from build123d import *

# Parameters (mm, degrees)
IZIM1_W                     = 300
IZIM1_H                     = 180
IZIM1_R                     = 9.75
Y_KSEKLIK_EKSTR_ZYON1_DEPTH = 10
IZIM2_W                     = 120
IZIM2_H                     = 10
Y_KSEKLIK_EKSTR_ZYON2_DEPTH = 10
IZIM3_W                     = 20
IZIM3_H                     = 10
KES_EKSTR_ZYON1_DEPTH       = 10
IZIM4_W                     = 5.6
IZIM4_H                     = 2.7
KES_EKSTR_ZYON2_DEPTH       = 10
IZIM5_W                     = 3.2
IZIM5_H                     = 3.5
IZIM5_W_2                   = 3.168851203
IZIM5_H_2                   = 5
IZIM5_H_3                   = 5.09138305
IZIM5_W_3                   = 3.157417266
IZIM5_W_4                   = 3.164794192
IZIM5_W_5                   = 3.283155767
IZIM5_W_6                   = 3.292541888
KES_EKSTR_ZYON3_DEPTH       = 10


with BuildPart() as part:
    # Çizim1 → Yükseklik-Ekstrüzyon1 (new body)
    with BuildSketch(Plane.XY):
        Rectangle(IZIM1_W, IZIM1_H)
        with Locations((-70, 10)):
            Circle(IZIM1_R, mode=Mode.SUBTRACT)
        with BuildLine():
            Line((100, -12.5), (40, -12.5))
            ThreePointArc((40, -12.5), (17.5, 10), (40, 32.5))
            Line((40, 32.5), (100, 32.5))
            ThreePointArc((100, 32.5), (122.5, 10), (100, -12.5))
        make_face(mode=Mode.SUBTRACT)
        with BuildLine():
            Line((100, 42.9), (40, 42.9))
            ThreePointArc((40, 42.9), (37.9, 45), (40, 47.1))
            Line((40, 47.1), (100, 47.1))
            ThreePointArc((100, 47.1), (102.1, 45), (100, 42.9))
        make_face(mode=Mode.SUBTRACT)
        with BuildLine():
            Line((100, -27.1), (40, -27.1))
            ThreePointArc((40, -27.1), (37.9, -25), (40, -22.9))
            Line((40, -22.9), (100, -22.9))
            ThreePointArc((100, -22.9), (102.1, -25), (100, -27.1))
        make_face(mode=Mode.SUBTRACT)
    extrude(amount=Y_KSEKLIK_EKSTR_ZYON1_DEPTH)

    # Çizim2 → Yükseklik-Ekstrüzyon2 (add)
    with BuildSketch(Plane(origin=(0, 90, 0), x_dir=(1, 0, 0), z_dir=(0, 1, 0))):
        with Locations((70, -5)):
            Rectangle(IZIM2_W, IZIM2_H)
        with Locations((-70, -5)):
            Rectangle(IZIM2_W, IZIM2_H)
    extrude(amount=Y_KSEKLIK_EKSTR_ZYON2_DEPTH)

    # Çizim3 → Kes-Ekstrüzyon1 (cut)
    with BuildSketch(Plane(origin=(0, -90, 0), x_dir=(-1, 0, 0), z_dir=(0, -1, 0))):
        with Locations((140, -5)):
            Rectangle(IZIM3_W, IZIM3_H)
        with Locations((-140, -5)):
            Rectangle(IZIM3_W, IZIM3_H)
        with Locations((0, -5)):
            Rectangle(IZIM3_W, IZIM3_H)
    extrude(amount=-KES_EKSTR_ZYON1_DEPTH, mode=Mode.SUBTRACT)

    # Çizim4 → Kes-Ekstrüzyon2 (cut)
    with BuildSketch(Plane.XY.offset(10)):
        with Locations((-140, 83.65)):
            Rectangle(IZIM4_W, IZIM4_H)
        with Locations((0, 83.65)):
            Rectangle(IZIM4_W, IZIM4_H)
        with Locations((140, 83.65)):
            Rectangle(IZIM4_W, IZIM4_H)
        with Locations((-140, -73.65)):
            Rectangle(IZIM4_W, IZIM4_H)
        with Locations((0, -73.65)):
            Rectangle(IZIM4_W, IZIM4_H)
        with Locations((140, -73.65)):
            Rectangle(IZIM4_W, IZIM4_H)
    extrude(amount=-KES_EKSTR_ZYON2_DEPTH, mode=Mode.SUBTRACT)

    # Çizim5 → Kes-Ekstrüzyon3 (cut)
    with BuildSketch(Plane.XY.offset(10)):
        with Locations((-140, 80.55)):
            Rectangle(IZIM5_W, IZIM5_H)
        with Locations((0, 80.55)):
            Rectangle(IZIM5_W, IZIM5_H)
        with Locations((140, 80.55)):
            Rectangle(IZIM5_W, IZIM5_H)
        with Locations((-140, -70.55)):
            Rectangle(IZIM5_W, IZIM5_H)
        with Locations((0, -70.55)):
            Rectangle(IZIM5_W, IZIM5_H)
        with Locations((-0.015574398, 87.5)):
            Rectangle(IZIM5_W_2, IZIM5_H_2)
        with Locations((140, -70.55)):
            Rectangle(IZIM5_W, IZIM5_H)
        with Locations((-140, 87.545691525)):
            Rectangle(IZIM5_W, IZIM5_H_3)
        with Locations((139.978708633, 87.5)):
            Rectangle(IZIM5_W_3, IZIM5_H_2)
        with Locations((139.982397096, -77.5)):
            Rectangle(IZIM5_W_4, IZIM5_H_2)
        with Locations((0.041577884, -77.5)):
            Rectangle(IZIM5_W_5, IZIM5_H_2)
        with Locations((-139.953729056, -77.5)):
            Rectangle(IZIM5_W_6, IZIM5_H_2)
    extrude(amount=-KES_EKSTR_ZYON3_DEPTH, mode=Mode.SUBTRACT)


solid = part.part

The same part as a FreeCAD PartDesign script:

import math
import FreeCAD as App
import Part
import Sketcher
from FreeCAD import Vector
Q = App.Units.Quantity


def add_polygon(sketch, points):
    """Adds a closed chain of lines whose ends are joined by coincident constraints."""
    first, n = sketch.GeometryCount, len(points)
    for a, b in zip(points, points[1:] + points[:1]):
        sketch.addGeometry(Part.LineSegment(App.Vector(*a, 0), App.Vector(*b, 0)), False)
    for i in range(n):
        sketch.addConstraint(Sketcher.Constraint("Coincident", first + i, 2, first + (i + 1) % n, 1))

doc = App.newDocument("Part")
body = doc.addObject("PartDesign::Body", "Body")

sketch1 = body.newObject("Sketcher::SketchObject", "Sketch")
sketch1.AttachmentSupport = (doc.getObject("XY_Plane"), [""])
sketch1.MapMode = "FlatFace"
add_polygon(sketch1, [(-150, 90), (-150, -90), (150, -90), (150, 90)])
sketch1.addGeometry(Part.ArcOfCircle(Part.Circle(Vector(100, -25, 0), Vector(0, 0, 1), 2.1), math.radians(-90), math.radians(90)), False)
sketch1.addGeometry(Part.LineSegment(Vector(100, -27.1, 0), Vector(40, -27.1, 0)), False)
sketch1.addGeometry(Part.ArcOfCircle(Part.Circle(Vector(40, -25, 0), Vector(0, 0, 1), 2.1), math.radians(90), math.radians(270)), False)
sketch1.addGeometry(Part.LineSegment(Vector(40, -22.9, 0), Vector(100, -22.9, 0)), False)
sketch1.addGeometry(Part.Circle(Vector(-70, 10, 0), Vector(0, 0, 1), 9.8), False)
sketch1.addGeometry(Part.ArcOfCircle(Part.Circle(Vector(100, 10, 0), Vector(0, 0, 1), 22.5), math.radians(-90), math.radians(90)), False)
sketch1.addGeometry(Part.LineSegment(Vector(100, -12.5, 0), Vector(40, -12.5, 0)), False)
sketch1.addGeometry(Part.ArcOfCircle(Part.Circle(Vector(40, 10, 0), Vector(0, 0, 1), 22.5), math.radians(90), math.radians(270)), False)
sketch1.addGeometry(Part.LineSegment(Vector(40, 32.5, 0), Vector(100, 32.5, 0)), False)
sketch1.addGeometry(Part.ArcOfCircle(Part.Circle(Vector(100, 45, 0), Vector(0, 0, 1), 2.1), math.radians(-90), math.radians(90)), False)
sketch1.addGeometry(Part.LineSegment(Vector(100, 42.9, 0), Vector(40, 42.9, 0)), False)
sketch1.addGeometry(Part.ArcOfCircle(Part.Circle(Vector(40, 45, 0), Vector(0, 0, 1), 2.1), math.radians(90), math.radians(270)), False)
sketch1.addGeometry(Part.LineSegment(Vector(40, 47.1, 0), Vector(100, 47.1, 0)), False)
sketch1.addConstraint([
    Sketcher.Constraint("Tangent", 4, 1, 5, 1),
    Sketcher.Constraint("Tangent", 5, 2, 6, 2),
    Sketcher.Constraint("Tangent", 6, 1, 7, 1),
    Sketcher.Constraint("Tangent", 7, 2, 4, 2),
    Sketcher.Constraint("Tangent", 9, 1, 10, 1),
    Sketcher.Constraint("Tangent", 10, 2, 11, 2),
    Sketcher.Constraint("Tangent", 11, 1, 12, 1),
    Sketcher.Constraint("Tangent", 12, 2, 9, 2),
    Sketcher.Constraint("Tangent", 13, 1, 14, 1),
    Sketcher.Constraint("Tangent", 14, 2, 15, 2),
    Sketcher.Constraint("Tangent", 15, 1, 16, 1),
    Sketcher.Constraint("Tangent", 16, 2, 13, 2),
    Sketcher.Constraint("Vertical", 0),
    Sketcher.Constraint("Horizontal", 1),
    Sketcher.Constraint("Vertical", 2),
    Sketcher.Constraint("Horizontal", 3),
    Sketcher.Constraint("Horizontal", 5),
    Sketcher.Constraint("Horizontal", 7),
    Sketcher.Constraint("Horizontal", 10),
    Sketcher.Constraint("Horizontal", 12),
    Sketcher.Constraint("Horizontal", 14),
    Sketcher.Constraint("Horizontal", 16),
    Sketcher.Constraint("Equal", 6, 13),
    Sketcher.Constraint("Symmetric", 0, 2, 2, 2, -1, 1),
    Sketcher.Constraint("Horizontal", 8, 3, 9, 3),
    Sketcher.Constraint("Vertical", 4, 3, 9, 3),
    Sketcher.Constraint("Vertical", 6, 3, 11, 3),
    Sketcher.Constraint("Vertical", 9, 3, 13, 3),
    Sketcher.Constraint("Vertical", 11, 3, 15, 3),
    Sketcher.Constraint("Diameter", 8, Q("19.5 mm")),
    Sketcher.Constraint("Radius", 4, Q("2.1 mm")),
    Sketcher.Constraint("Radius", 9, Q("22.5 mm")),
    Sketcher.Constraint("DistanceX", 1, 1, 1, 2, Q("300 mm")),
    Sketcher.Constraint("DistanceX", 5, 2, 5, 1, Q("60 mm")),
    Sketcher.Constraint("DistanceY", 0, 2, 0, 1, Q("180 mm")),
    Sketcher.Constraint("DistanceX", -1, 1, 4, 3, Q("100 mm")),
    Sketcher.Constraint("DistanceY", 4, 3, -1, 1, Q("25 mm")),
    Sketcher.Constraint("DistanceX", 8, 3, -1, 1, Q("70 mm")),
    Sketcher.Constraint("DistanceY", -1, 1, 8, 3, Q("10 mm")),
    Sketcher.Constraint("DistanceY", -1, 1, 13, 3, Q("45 mm")),
])
pad1 = body.newObject("PartDesign::Pad", "Pad")
pad1.Profile = sketch1
pad1.Length = 10

sketch2 = body.newObject("Sketcher::SketchObject", "Sketch001")
sketch2.AttachmentSupport = (doc.getObject("XZ_Plane"), [""])
sketch2.MapMode = "FlatFace"
sketch2.AttachmentOffset = App.Placement(Vector(0, 0, -90), App.Rotation())
add_polygon(sketch2, [(10, 0), (10, 10), (130, 10), (130, 0)])
add_polygon(sketch2, [(-130, 0), (-130, 10), (-10, 10), (-10, 0)])
sketch2.addConstraint([
    Sketcher.Constraint("Vertical", 0),
    Sketcher.Constraint("Horizontal", 1),
    Sketcher.Constraint("Vertical", 2),
    Sketcher.Constraint("Horizontal", 3),
    Sketcher.Constraint("Vertical", 4),
    Sketcher.Constraint("Horizontal", 5),
    Sketcher.Constraint("Vertical", 6),
    Sketcher.Constraint("Horizontal", 7),
    Sketcher.Constraint("Symmetric", 3, 2, 6, 2, -1, 1),
    Sketcher.Constraint("Symmetric", 1, 2, 4, 2, -2),
    Sketcher.Constraint("PointOnObject", 2, 2, -1),
    Sketcher.Constraint("DistanceX", 1, 1, 1, 2, Q("120 mm")),
    Sketcher.Constraint("DistanceY", 0, 1, 0, 2, Q("10 mm")),
    Sketcher.Constraint("DistanceX", -1, 1, 0, 2, Q("10 mm")),
])
pad2 = body.newObject("PartDesign::Pad", "Pad001")
pad2.Profile = sketch2
pad2.Length = 10
pad2.Reversed = True

sketch3 = body.newObject("Sketcher::SketchObject", "Sketch002")
sketch3.AttachmentSupport = (doc.getObject("XZ_Plane"), [""])
sketch3.MapMode = "FlatFace"
sketch3.AttachmentOffset = App.Placement(Vector(0, 0, 90), App.Rotation())
add_polygon(sketch3, [(-130, 0), (-130, 10), (-150, 10), (-150, 0)])
add_polygon(sketch3, [(150, 0), (150, 10), (130, 10), (130, 0)])
add_polygon(sketch3, [(10, 0), (10, 10), (-10, 10), (-10, 0)])
sketch3.addConstraint([
    Sketcher.Constraint("Vertical", 0),
    Sketcher.Constraint("Horizontal", 1),
    Sketcher.Constraint("Vertical", 2),
    Sketcher.Constraint("Horizontal", 3),
    Sketcher.Constraint("Vertical", 4),
    Sketcher.Constraint("Horizontal", 5),
    Sketcher.Constraint("Vertical", 6),
    Sketcher.Constraint("Horizontal", 7),
    Sketcher.Constraint("Vertical", 8),
    Sketcher.Constraint("Horizontal", 9),
    Sketcher.Constraint("Vertical", 10),
    Sketcher.Constraint("Horizontal", 11),
    Sketcher.Constraint("Symmetric", 3, 2, 6, 2, -1, 1),
    Sketcher.Constraint("Symmetric", 10, 2, 11, 2, -1, 1),
    Sketcher.Constraint("Symmetric", 1, 2, 4, 2, -2),
    Sketcher.Constraint("PointOnObject", 2, 2, -1),
    Sketcher.Constraint("Horizontal", 5, 2, 8, 2),
    Sketcher.Constraint("Equal", 7, 9),
    Sketcher.Constraint("DistanceX", 1, 2, 1, 1, Q("20 mm")),
    Sketcher.Constraint("DistanceY", 0, 1, 0, 2, Q("10 mm")),
    Sketcher.Constraint("DistanceX", 0, 2, -1, 1, Q("130 mm")),
])
pocket1 = body.newObject("PartDesign::Pocket", "Pocket")
pocket1.Profile = sketch3
pocket1.Length = 10

sketch4 = body.newObject("Sketcher::SketchObject", "Sketch003")
sketch4.AttachmentSupport = (doc.getObject("XY_Plane"), [""])
sketch4.MapMode = "FlatFace"
sketch4.AttachmentOffset = App.Placement(Vector(0, 0, 10), App.Rotation())
add_polygon(sketch4, [(-142.8, 85), (-142.8, 82.3), (-137.2, 82.3), (-137.2, 85)])
add_polygon(sketch4, [(-2.8, 85), (-2.8, 82.3), (2.8, 82.3), (2.8, 85)])
add_polygon(sketch4, [(137.2, 85), (137.2, 82.3), (142.8, 82.3), (142.8, 85)])
add_polygon(sketch4, [(-142.8, -72.3), (-142.8, -75), (-137.2, -75), (-137.2, -72.3)])
add_polygon(sketch4, [(-2.8, -72.3), (-2.8, -75), (2.8, -75), (2.8, -72.3)])
add_polygon(sketch4, [(137.2, -72.3), (137.2, -75), (142.8, -75), (142.8, -72.3)])
sketch4.addConstraint([
    Sketcher.Constraint("Vertical", 0),
    Sketcher.Constraint("Horizontal", 1),
    Sketcher.Constraint("Vertical", 2),
    Sketcher.Constraint("Horizontal", 3),
    Sketcher.Constraint("Vertical", 4),
    Sketcher.Constraint("Horizontal", 5),
    Sketcher.Constraint("Vertical", 6),
    Sketcher.Constraint("Horizontal", 7),
    Sketcher.Constraint("Vertical", 8),
    Sketcher.Constraint("Horizontal", 9),
    Sketcher.Constraint("Vertical", 10),
    Sketcher.Constraint("Horizontal", 11),
    Sketcher.Constraint("Vertical", 12),
    Sketcher.Constraint("Horizontal", 13),
    Sketcher.Constraint("Vertical", 14),
    Sketcher.Constraint("Horizontal", 15),
    Sketcher.Constraint("Vertical", 16),
    Sketcher.Constraint("Horizontal", 17),
    Sketcher.Constraint("Vertical", 18),
    Sketcher.Constraint("Horizontal", 19),
    Sketcher.Constraint("Vertical", 20),
    Sketcher.Constraint("Horizontal", 21),
    Sketcher.Constraint("Vertical", 22),
    Sketcher.Constraint("Horizontal", 23),
    Sketcher.Constraint("Symmetric", 1, 2, 8, 2, -2),
    Sketcher.Constraint("Symmetric", 3, 2, 10, 2, -2),
    Sketcher.Constraint("Symmetric", 13, 2, 20, 2, -2),
    Sketcher.Constraint("Symmetric", 15, 2, 22, 2, -2),
    Sketcher.Constraint("Horizontal", 1, 2, 4, 2),
    Sketcher.Constraint("Horizontal", 3, 2, 6, 2),
    Sketcher.Constraint("Horizontal", 13, 2, 16, 2),
    Sketcher.Constraint("Horizontal", 15, 2, 18, 2),
    Sketcher.Constraint("Vertical", 3, 2, 12, 2),
    Sketcher.Constraint("Vertical", 2, 2, 13, 2),
    Sketcher.Constraint("Vertical", 7, 2, 16, 2),
    Sketcher.Constraint("Vertical", 6, 2, 17, 2),
    Sketcher.Constraint("Equal", 3, 5),
    Sketcher.Constraint("Equal", 10, 12),
    Sketcher.Constraint("DistanceX", 1, 1, 1, 2, Q("5.6 mm")),
    Sketcher.Constraint("DistanceY", 0, 2, 0, 1, Q("2.7 mm")),
    Sketcher.Constraint("DistanceY", -1, 1, 2, 2, Q("85 mm")),
    Sketcher.Constraint("DistanceY", 12, 2, -1, 1, Q("75 mm")),
    Sketcher.Constraint("DistanceX", 0, 2, 4, 2, Q("140 mm")),
    Sketcher.Constraint("DistanceX", 4, 2, 8, 2, Q("140 mm")),
])
pocket2 = body.newObject("PartDesign::Pocket", "Pocket001")
pocket2.Profile = sketch4
pocket2.Length = 10

sketch5 = body.newObject("Sketcher::SketchObject", "Sketch004")
sketch5.AttachmentSupport = (doc.getObject("XY_Plane"), [""])
sketch5.MapMode = "FlatFace"
sketch5.AttachmentOffset = App.Placement(Vector(0, 0, 10), App.Rotation())
add_polygon(sketch5, [(-141.6, 82.3), (-141.6, 78.8), (-138.4, 78.8), (-138.4, 82.3)])
add_polygon(sketch5, [(-1.6, 82.3), (-1.6, 78.8), (1.6, 78.8), (1.6, 82.3)])
add_polygon(sketch5, [(138.4, 82.3), (138.4, 78.8), (141.6, 78.8), (141.6, 82.3)])
add_polygon(sketch5, [(-141.6, -68.8), (-141.6, -72.3), (-138.4, -72.3), (-138.4, -68.8)])
add_polygon(sketch5, [(-1.6, -68.8), (-1.6, -72.3), (1.6, -72.3), (1.6, -68.8)])
add_polygon(sketch5, [(-1.6, 90), (-1.6, 85), (1.6, 85), (1.6, 90)])
add_polygon(sketch5, [(138.4, -68.8), (138.4, -72.3), (141.6, -72.3), (141.6, -68.8)])
add_polygon(sketch5, [(-141.6, 90.1), (-141.6, 85), (-138.4, 85), (-138.4, 90.1)])
add_polygon(sketch5, [(138.4, 90), (138.4, 85), (141.6, 85), (141.6, 90)])
add_polygon(sketch5, [(138.4, -75), (138.4, -80), (141.6, -80), (141.6, -75)])
add_polygon(sketch5, [(-1.6, -75), (-1.6, -80), (1.7, -80), (1.7, -75)])
add_polygon(sketch5, [(-141.6, -75), (-141.6, -80), (-138.3, -80), (-138.3, -75)])
sketch5.addConstraint([
    Sketcher.Constraint("Vertical", 0),
    Sketcher.Constraint("Horizontal", 1),
    Sketcher.Constraint("Vertical", 2),
    Sketcher.Constraint("Horizontal", 3),
    Sketcher.Constraint("Vertical", 4),
    Sketcher.Constraint("Horizontal", 5),
    Sketcher.Constraint("Vertical", 6),
    Sketcher.Constraint("Horizontal", 7),
    Sketcher.Constraint("Vertical", 8),
    Sketcher.Constraint("Horizontal", 9),
    Sketcher.Constraint("Vertical", 10),
    Sketcher.Constraint("Horizontal", 11),
    Sketcher.Constraint("Vertical", 12),
    Sketcher.Constraint("Horizontal", 13),
    Sketcher.Constraint("Vertical", 14),
    Sketcher.Constraint("Horizontal", 15),
    Sketcher.Constraint("Vertical", 16),
    Sketcher.Constraint("Horizontal", 17),
    Sketcher.Constraint("Vertical", 18),
    Sketcher.Constraint("Horizontal", 19),
    Sketcher.Constraint("Vertical", 20),
    Sketcher.Constraint("Horizontal", 21),
    Sketcher.Constraint("Vertical", 22),
    Sketcher.Constraint("Horizontal", 23),
    Sketcher.Constraint("Vertical", 24),
    Sketcher.Constraint("Horizontal", 25),
    Sketcher.Constraint("Vertical", 26),
    Sketcher.Constraint("Horizontal", 27),
    Sketcher.Constraint("Vertical", 28),
    Sketcher.Constraint("Horizontal", 29),
    Sketcher.Constraint("Vertical", 30),
    Sketcher.Constraint("Horizontal", 31),
    Sketcher.Constraint("Vertical", 32),
    Sketcher.Constraint("Horizontal", 33),
    Sketcher.Constraint("Vertical", 34),
    Sketcher.Constraint("Horizontal", 35),
    Sketcher.Constraint("Vertical", 36),
    Sketcher.Constraint("Horizontal", 37),
    Sketcher.Constraint("Vertical", 38),
    Sketcher.Constraint("Horizontal", 39),
    Sketcher.Constraint("Vertical", 40),
    Sketcher.Constraint("Horizontal", 41),
    Sketcher.Constraint("Vertical", 42),
    Sketcher.Constraint("Horizontal", 43),
    Sketcher.Constraint("Vertical", 44),
    Sketcher.Constraint("Horizontal", 45),
    Sketcher.Constraint("Vertical", 46),
    Sketcher.Constraint("Horizontal", 47),
    Sketcher.Constraint("Symmetric", 1, 2, 8, 2, -2),
    Sketcher.Constraint("Symmetric", 3, 2, 10, 2, -2),
    Sketcher.Constraint("Symmetric", 13, 2, 24, 2, -2),
    Sketcher.Constraint("Symmetric", 15, 2, 26, 2, -2),
    Sketcher.Constraint("Symmetric", 29, 2, 32, 2, -2),
    Sketcher.Constraint("Horizontal", 1, 2, 4, 2),
    Sketcher.Constraint("Horizontal", 3, 2, 6, 2),
    Sketcher.Constraint("Horizontal", 13, 2, 16, 2),
    Sketcher.Constraint("Horizontal", 15, 2, 18, 2),
    Sketcher.Constraint("Horizontal", 21, 2, 28, 2),
    Sketcher.Constraint("Horizontal", 23, 2, 34, 2),
    Sketcher.Constraint("Horizontal", 37, 2, 40, 2),
    Sketcher.Constraint("Horizontal", 39, 2, 42, 2),
    Sketcher.Constraint("Horizontal", 41, 2, 44, 2),
    Sketcher.Constraint("Horizontal", 43, 2, 46, 2),
    Sketcher.Constraint("Vertical", 3, 2, 12, 2),
    Sketcher.Constraint("Vertical", 2, 2, 13, 2),
    Sketcher.Constraint("Vertical", 7, 2, 16, 2),
    Sketcher.Constraint("Vertical", 6, 2, 17, 2),
    Sketcher.Constraint("Vertical", 19, 2, 20, 2),
    Sketcher.Constraint("Vertical", 15, 2, 28, 2),
    Sketcher.Constraint("Vertical", 14, 2, 29, 2),
    Sketcher.Constraint("Vertical", 35, 2, 36, 2),
    Sketcher.Constraint("Vertical", 23, 2, 40, 2),
    Sketcher.Constraint("Vertical", 31, 2, 44, 2),
    Sketcher.Constraint("Equal", 3, 5),
    Sketcher.Constraint("Equal", 10, 12),
    Sketcher.Constraint("Equal", 34, 36),
    Sketcher.Constraint("DistanceY", 20, 2, 20, 1, Q("5 mm")),
    Sketcher.Constraint("DistanceX", 1, 1, 1, 2, Q("3.2 mm")),
    Sketcher.Constraint("DistanceY", 0, 2, 0, 1, Q("3.5 mm")),
    Sketcher.Constraint("DistanceY", -1, 1, 20, 2, Q("85 mm")),
    Sketcher.Constraint("DistanceY", 36, 2, -1, 1, Q("80 mm")),
    Sketcher.Constraint("DistanceX", 0, 2, 4, 2, Q("140 mm")),
    Sketcher.Constraint("DistanceX", 4, 2, 8, 2, Q("140 mm")),
    Sketcher.Constraint("DistanceY", -1, 1, 0, 2, Q("78.8 mm")),
    Sketcher.Constraint("DistanceY", 12, 2, -1, 1, Q("72.3 mm")),
    Sketcher.Constraint("DistanceX", 21, 1, 21, 2, Q("3.168851 mm")),
    Sketcher.Constraint("DistanceX", 45, 1, 45, 2, Q("3.292542 mm")),
    Sketcher.Constraint("DistanceX", 33, 1, 33, 2, Q("3.157417 mm")),
    Sketcher.Constraint("DistanceX", 37, 1, 37, 2, Q("3.164794 mm")),
    Sketcher.Constraint("DistanceX", 41, 1, 41, 2, Q("3.283156 mm")),
    Sketcher.Constraint("DistanceY", 28, 2, 28, 1, Q("5.091383 mm")),
])
pocket3 = body.newObject("PartDesign::Pocket", "Pocket002")
pocket3.Profile = sketch5
pocket3.Length = 10

doc.recompute()
